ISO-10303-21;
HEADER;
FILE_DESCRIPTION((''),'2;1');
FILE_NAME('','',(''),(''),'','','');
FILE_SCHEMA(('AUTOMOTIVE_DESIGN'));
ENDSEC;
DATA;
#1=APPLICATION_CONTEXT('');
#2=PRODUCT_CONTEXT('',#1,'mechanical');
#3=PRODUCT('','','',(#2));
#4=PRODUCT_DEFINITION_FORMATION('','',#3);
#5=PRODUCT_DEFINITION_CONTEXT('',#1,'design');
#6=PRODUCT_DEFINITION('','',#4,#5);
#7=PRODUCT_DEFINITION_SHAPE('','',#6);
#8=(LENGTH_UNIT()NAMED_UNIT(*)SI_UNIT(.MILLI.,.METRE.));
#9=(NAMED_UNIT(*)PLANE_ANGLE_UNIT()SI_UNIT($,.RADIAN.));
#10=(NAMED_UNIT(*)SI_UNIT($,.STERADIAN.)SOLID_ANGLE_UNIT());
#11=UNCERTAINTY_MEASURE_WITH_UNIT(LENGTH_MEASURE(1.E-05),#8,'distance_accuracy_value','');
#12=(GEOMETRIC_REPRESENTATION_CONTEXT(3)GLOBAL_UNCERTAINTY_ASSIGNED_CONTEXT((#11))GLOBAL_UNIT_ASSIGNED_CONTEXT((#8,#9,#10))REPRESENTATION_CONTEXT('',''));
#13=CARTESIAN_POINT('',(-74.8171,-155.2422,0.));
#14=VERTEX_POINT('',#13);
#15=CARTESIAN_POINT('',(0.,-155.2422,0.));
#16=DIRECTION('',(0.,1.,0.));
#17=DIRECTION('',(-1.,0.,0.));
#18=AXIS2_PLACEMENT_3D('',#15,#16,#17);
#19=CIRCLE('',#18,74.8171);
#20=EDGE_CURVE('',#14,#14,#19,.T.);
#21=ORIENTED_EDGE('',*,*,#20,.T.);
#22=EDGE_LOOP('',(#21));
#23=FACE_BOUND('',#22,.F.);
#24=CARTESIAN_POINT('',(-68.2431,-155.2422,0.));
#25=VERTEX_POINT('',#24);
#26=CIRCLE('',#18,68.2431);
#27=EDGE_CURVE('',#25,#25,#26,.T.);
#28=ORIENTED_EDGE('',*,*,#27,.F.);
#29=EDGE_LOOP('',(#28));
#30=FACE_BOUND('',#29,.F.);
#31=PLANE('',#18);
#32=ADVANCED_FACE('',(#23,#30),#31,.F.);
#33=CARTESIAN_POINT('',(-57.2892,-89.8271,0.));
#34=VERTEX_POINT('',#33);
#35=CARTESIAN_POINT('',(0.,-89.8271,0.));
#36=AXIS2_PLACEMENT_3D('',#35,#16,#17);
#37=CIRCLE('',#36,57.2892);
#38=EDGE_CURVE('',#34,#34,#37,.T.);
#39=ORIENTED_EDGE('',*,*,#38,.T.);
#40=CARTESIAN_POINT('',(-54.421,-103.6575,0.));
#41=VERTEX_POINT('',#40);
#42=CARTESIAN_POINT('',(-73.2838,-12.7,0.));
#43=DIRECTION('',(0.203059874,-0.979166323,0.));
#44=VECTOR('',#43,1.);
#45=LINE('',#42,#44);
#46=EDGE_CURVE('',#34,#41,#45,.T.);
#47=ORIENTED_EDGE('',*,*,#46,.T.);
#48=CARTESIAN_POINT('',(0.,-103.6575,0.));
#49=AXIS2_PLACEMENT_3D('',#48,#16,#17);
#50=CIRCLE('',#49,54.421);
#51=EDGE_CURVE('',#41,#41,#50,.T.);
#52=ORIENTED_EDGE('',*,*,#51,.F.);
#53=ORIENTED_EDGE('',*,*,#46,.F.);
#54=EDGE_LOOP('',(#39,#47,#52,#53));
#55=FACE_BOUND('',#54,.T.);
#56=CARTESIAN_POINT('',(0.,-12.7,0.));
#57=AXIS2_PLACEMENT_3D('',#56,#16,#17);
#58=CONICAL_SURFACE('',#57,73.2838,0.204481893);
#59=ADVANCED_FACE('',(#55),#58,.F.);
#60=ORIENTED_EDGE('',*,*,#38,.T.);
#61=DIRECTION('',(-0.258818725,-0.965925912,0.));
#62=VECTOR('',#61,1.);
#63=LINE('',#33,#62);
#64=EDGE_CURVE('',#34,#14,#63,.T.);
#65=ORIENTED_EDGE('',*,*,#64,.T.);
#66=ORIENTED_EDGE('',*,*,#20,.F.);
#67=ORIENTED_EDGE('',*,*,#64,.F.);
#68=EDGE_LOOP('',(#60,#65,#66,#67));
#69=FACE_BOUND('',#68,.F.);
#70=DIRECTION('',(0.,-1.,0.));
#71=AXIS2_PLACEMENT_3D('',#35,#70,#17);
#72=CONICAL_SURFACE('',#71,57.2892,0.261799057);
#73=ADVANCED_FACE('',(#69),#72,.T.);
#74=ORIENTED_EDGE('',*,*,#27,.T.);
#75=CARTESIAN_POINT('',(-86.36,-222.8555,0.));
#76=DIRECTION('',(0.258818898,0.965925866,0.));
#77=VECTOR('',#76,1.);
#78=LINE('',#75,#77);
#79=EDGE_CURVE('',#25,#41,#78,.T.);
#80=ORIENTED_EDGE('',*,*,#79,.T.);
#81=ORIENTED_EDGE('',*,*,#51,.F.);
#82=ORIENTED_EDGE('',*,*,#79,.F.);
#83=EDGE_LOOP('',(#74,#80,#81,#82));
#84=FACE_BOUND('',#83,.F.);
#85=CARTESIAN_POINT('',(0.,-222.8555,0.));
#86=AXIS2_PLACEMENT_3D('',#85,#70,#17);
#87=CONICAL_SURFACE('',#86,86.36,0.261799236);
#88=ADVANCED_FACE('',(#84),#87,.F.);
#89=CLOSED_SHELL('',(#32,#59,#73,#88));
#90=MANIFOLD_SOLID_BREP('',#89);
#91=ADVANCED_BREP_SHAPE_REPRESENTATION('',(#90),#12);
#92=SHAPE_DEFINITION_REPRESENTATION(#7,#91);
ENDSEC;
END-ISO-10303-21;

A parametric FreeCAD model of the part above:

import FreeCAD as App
import Part
import Sketcher

V = App.Vector
Q = App.Units.Quantity


def add_polygon(sketch, points):
    """Adds a closed chain of lines whose ends are joined by coincident constraints."""
    first, n = sketch.GeometryCount, len(points)
    for a, b in zip(points, points[1:] + points[:1]):
        sketch.addGeometry(Part.LineSegment(App.Vector(*a, 0), App.Vector(*b, 0)), False)
    for i in range(n):
        sketch.addConstraint(Sketcher.Constraint("Coincident", first + i, 2, first + (i + 1) % n, 1))

doc = App.newDocument("Part")
body = doc.addObject("PartDesign::Body", "Body")

sketch1 = body.newObject("Sketcher::SketchObject", "Sketch")
sketch1.AttachmentSupport = (doc.getObject("XY_Plane"), [""])
sketch1.MapMode = "FlatFace"
add_polygon(sketch1, [(-54.421, -103.6575), (-57.2892, -89.8271), (-74.8171, -155.2422), (-68.243083, -155.242205)])
sketch1.addConstraint(Sketcher.Constraint("Horizontal", 2))
sketch1.addConstraint(Sketcher.Constraint("Parallel", 1, 3))
sketch1.addConstraint(Sketcher.Constraint("Angle", 1, Q("-105 deg")))
sketch1.addConstraint(Sketcher.Constraint("DistanceX", 2, 1, 2, 2, Q("6.574 mm")))
sketch1.addConstraint(Sketcher.Constraint("DistanceY", 0, 2, -1, 1, Q("89.827 mm")))
sketch1.addConstraint(Sketcher.Constraint("DistanceX", 1, 2, -1, 1, Q("74.817 mm")))
sketch1.addConstraint(Sketcher.Constraint("DistanceX", 3, 2, -1, 1, Q("54.421 mm")))
sketch1.addConstraint(Sketcher.Constraint("DistanceX", 1, 2, 0, 2, Q("17.528 mm")))
revolution = body.newObject("PartDesign::Revolution", "Revolution")
revolution.Profile = sketch1
revolution.ReferenceAxis = (sketch1, ["V_Axis"])
revolution.Angle = 360

doc.recompute()
